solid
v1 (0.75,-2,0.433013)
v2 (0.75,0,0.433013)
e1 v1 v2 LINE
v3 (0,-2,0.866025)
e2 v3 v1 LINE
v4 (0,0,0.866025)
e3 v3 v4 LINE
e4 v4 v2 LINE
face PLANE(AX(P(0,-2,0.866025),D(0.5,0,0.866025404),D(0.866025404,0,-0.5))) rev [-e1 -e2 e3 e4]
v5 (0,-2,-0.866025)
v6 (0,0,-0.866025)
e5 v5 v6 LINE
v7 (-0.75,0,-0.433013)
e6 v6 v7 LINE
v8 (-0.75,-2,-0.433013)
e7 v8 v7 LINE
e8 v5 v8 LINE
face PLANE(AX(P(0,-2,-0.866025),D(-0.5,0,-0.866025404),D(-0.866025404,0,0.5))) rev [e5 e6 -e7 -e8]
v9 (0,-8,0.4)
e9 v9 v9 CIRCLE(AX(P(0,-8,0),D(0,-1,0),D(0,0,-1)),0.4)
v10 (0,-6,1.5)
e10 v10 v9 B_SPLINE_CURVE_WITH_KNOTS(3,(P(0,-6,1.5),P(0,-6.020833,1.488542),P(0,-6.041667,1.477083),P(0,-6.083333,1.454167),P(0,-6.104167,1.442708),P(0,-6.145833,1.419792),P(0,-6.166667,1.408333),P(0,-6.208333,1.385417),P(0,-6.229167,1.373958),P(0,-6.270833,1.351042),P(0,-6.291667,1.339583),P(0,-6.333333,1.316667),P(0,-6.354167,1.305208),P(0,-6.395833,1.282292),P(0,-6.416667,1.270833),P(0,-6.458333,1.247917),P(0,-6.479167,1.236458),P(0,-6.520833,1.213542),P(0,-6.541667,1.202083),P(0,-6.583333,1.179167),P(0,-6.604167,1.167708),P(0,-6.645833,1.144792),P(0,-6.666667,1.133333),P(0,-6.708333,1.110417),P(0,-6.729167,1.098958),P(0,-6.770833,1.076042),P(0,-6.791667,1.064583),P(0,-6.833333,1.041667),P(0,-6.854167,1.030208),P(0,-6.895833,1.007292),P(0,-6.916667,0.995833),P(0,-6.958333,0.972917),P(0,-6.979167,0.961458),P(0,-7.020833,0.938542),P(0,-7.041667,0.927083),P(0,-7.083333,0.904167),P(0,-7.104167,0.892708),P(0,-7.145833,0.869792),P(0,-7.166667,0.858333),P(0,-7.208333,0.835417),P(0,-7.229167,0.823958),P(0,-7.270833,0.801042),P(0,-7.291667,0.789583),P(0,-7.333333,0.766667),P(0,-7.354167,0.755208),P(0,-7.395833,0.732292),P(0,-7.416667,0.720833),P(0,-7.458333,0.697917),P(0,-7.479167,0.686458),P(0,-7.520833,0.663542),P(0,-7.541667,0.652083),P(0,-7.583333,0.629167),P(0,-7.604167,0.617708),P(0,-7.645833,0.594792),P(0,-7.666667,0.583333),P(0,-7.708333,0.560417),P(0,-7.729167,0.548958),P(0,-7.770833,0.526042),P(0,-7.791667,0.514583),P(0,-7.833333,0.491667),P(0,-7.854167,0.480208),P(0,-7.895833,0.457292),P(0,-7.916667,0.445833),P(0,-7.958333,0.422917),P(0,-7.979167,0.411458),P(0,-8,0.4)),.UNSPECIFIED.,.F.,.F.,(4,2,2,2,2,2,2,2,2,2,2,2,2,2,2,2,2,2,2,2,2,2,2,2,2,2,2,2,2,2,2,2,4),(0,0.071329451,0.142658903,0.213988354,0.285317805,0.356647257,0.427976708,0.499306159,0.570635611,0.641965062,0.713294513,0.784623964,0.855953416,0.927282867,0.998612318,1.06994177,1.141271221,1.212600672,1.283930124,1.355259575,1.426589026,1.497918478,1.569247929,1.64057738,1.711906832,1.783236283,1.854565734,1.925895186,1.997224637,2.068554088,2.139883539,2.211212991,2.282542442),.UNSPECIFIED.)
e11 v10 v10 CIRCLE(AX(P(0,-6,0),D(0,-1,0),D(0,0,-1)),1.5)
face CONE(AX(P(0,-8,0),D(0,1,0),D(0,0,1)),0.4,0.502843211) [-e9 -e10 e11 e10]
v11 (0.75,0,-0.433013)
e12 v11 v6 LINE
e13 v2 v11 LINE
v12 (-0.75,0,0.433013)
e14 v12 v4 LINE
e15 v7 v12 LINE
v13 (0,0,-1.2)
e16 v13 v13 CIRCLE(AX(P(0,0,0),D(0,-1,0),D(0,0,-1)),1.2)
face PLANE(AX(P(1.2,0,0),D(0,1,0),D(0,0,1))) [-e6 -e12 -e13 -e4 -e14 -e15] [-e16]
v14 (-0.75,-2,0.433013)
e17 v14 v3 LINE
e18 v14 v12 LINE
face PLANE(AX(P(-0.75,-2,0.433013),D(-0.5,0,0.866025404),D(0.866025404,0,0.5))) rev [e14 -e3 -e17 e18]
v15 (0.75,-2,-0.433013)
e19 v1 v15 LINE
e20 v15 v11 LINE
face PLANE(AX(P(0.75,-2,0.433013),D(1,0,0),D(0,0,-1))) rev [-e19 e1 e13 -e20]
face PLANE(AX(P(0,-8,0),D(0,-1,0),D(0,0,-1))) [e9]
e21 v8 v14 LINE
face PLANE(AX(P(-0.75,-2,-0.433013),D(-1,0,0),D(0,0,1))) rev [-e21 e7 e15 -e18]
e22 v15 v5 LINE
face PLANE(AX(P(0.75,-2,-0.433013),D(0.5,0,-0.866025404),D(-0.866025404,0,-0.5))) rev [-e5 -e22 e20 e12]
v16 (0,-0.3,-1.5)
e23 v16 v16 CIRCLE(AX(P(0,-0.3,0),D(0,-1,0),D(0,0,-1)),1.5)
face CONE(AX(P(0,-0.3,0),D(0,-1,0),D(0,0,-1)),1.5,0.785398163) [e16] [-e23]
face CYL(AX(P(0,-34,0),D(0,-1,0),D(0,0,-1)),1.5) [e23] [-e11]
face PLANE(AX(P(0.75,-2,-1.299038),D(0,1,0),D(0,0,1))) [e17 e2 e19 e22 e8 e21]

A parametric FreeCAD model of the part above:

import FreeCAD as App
import Part
import Sketcher
Q = App.Units.Quantity

doc = App.newDocument("Part")
body = doc.addObject("PartDesign::Body", "Body")

# Sketch on XY plane
sketch1 = body.newObject("Sketcher::SketchObject", "Sketch")
sketch1.AttachmentSupport = (doc.getObject("XY_Plane"), [""])
sketch1.MapMode = "FlatFace"
sketch1.addGeometry([
    Part.LineSegment(App.Vector(0, -8, 0), App.Vector(0.4, -8, 0)),  # 0
    Part.LineSegment(App.Vector(0.4, -8, 0), App.Vector(1.5, -6, 0)),  # 1
    Part.LineSegment(App.Vector(1.5, -6, 0), App.Vector(1.5, -0.3, 0)),  # 2
    Part.LineSegment(App.Vector(1.5, -0.3, 0), App.Vector(1.2, 0, 0)),  # 3
    Part.LineSegment(App.Vector(1.2, 0, 0), App.Vector(0, 0, 0)),  # 4
    Part.LineSegment(App.Vector(0, 0, 0), App.Vector(0, -8, 0)),  # 5
], False)
sketch1.addConstraint([
    Sketcher.Constraint("Coincident", 0, 2, 1, 1),
    Sketcher.Constraint("Coincident", 1, 2, 2, 1),
    Sketcher.Constraint("Coincident", 2, 2, 3, 1),
    Sketcher.Constraint("Coincident", 3, 2, 4, 1),
    Sketcher.Constraint("Coincident", 4, 2, 5, 1),
    Sketcher.Constraint("Coincident", 5, 2, 0, 1),
    Sketcher.Constraint("Horizontal", 0),
    Sketcher.Constraint("Vertical", 2),
    Sketcher.Constraint("Horizontal", 4),
    Sketcher.Constraint("Vertical", 5),
    Sketcher.Constraint("Coincident", 4, 2, -1, 1),
    Sketcher.Constraint("DistanceY", 5, 2, 5, 1, 8.0),
    Sketcher.Constraint("Angle", 3, Q("135 deg")),
    Sketcher.Constraint("DistanceX", 0, 1, 0, 2, 0.4),
    Sketcher.Constraint("DistanceX", 4, 2, 4, 1, 1.2),
    Sketcher.Constraint("DistanceY", 2, 1, 2, 2, 5.7),
    Sketcher.Constraint("DistanceY", 1, 2, -1, 1, 6.0),
])
revolution = body.newObject("PartDesign::Revolution", "Revolution")
revolution.Profile = sketch1
revolution.ReferenceAxis = (sketch1, ["V_Axis"])
revolution.Angle = 360

# Sketch on XZ plane
sketch2 = body.newObject("Sketcher::SketchObject", "Sketch001")
sketch2.AttachmentSupport = (doc.getObject("XZ_Plane"), [""])
sketch2.MapMode = "FlatFace"
sketch2.addGeometry([
    Part.LineSegment(App.Vector(0.8, -0.4, 0), App.Vector(0, -0.9, 0)),  # 0
    Part.LineSegment(App.Vector(0, -0.9, 0), App.Vector(-0.8, -0.4, 0)),  # 1
    Part.LineSegment(App.Vector(-0.8, -0.4, 0), App.Vector(-0.8, 0.4, 0)),  # 2
    Part.LineSegment(App.Vector(-0.8, 0.4, 0), App.Vector(0, 0.9, 0)),  # 3
    Part.LineSegment(App.Vector(0, 0.9, 0), App.Vector(0.8, 0.4, 0)),  # 4
    Part.LineSegment(App.Vector(0.8, 0.4, 0), App.Vector(0.8, -0.4, 0)),  # 5
], False)
sketch2.addConstraint([
    Sketcher.Constraint("Coincident", 0, 2, 1, 1),
    Sketcher.Constraint("Coincident", 1, 2, 2, 1),
    Sketcher.Constraint("Coincident", 2, 2, 3, 1),
    Sketcher.Constraint("Coincident", 3, 2, 4, 1),
    Sketcher.Constraint("Coincident", 4, 2, 5, 1),
    Sketcher.Constraint("Coincident", 5, 2, 0, 1),
    Sketcher.Constraint("Vertical", 2),
    Sketcher.Constraint("Vertical", 5),
    Sketcher.Constraint("Symmetric", 0, 2, 3, 2, -1, 1),
    Sketcher.Constraint("Symmetric", 1, 2, 4, 2, -1, 1),
    Sketcher.Constraint("PointOnObject", 0, 2, -2),
    Sketcher.Constraint("Parallel", 0, 3),
    Sketcher.Constraint("Horizontal", 2, 2, 4, 2),
    Sketcher.Constraint("Angle", 0, Q("-150 deg")),
    Sketcher.Constraint("DistanceX", 2, 2, 4, 2, 1.5),
    Sketcher.Constraint("DistanceY", 2, 1, 2, 2, 0.866025),
])
pocket1 = body.newObject("PartDesign::Pocket", "Pocket")
pocket1.Profile = sketch2
pocket1.Length = 2
pocket1.Reversed = True

doc.recompute()
